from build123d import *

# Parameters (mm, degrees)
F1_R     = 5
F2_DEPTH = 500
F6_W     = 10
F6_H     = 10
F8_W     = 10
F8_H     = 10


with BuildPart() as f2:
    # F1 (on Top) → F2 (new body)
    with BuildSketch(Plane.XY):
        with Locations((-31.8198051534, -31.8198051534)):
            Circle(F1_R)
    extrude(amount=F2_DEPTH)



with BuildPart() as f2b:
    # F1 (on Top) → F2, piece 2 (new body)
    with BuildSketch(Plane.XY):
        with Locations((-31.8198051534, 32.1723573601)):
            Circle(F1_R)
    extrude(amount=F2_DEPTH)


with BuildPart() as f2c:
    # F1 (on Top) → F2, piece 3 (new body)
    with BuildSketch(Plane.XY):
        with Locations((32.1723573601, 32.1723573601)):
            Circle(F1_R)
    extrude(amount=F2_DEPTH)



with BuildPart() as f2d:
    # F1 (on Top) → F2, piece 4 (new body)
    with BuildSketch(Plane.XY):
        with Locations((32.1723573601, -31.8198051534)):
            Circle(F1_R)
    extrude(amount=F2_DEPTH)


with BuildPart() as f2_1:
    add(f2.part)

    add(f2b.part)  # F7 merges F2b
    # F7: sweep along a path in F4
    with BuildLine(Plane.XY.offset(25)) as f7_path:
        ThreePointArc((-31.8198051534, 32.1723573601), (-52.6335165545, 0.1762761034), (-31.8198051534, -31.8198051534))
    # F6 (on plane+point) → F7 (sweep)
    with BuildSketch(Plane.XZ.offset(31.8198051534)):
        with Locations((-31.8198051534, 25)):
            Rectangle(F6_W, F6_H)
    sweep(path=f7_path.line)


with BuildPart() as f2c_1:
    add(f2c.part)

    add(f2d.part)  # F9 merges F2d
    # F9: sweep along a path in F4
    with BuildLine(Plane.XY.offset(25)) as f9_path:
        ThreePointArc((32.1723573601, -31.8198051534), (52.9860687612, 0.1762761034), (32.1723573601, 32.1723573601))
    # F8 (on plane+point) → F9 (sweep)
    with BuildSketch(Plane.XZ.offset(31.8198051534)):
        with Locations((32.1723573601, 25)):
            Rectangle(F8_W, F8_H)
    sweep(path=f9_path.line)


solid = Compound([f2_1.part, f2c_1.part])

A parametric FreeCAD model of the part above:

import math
import FreeCAD as App
import Part
import Sketcher
from FreeCAD import Vector

doc = App.newDocument("Part")
params = doc.addObject("Spreadsheet::Sheet", "Params")
for row, (alias, value) in enumerate([
    ("sketch1_diameter", "10 mm"),
    ("pad1_length", "500 mm"),
    ("sketch2_diameter", "10 mm"),
    ("pad2_length", "500 mm"),
    ("sketch3_diameter", "10 mm"),
    ("pad3_length", "500 mm"),
    ("sketch4_diameter", "10 mm"),
    ("pad4_length", "500 mm"),
    ("sketch5_width", "10 mm"),
    ("sketch6_radius", "35 mm"),
    ("sketch7_width", "10 mm"),
    ("sketch8_radius", "35 mm"),
], start=1):
    params.set(f"A{row}", alias)
    params.set(f"B{row}", "=" + value)
    params.setAlias(f"B{row}", alias)

body = doc.addObject("PartDesign::Body", "Body")

sketch1 = body.newObject("Sketcher::SketchObject", "Sketch")
sketch1.AttachmentSupport = (doc.getObject("XY_Plane"), [""])
sketch1.MapMode = "FlatFace"
sketch1.addGeometry(Part.Circle(Vector(-31.819805, -31.819805, 0), Vector(0, 0, 1), 5), False)
sketch1.addConstraint([
    Sketcher.Constraint("Diameter", 0, 10.0),
    Sketcher.Constraint("DistanceX", 0, 3, -1, 1, 31.819805),
    Sketcher.Constraint("DistanceY", 0, 3, -1, 1, 31.819805),
])
sketch1.setExpression("Constraints[0]", "Params.sketch1_diameter")
pad1 = body.newObject("PartDesign::Pad", "Pad")
pad1.Profile = sketch1
pad1.setExpression("Length", "Params.pad1_length")
body2 = doc.addObject("PartDesign::Body", "Body001")

sketch2 = body2.newObject("Sketcher::SketchObject", "Sketch001")
sketch2.AttachmentSupport = (doc.getObject("XY_Plane001"), [""])
sketch2.MapMode = "FlatFace"
sketch2.addGeometry(Part.Circle(Vector(-31.819805, 32.172357, 0), Vector(0, 0, 1), 5), False)
sketch2.addConstraint([
    Sketcher.Constraint("Diameter", 0, 10.0),
    Sketcher.Constraint("DistanceX", 0, 3, -1, 1, 31.819805),
    Sketcher.Constraint("DistanceY", -1, 1, 0, 3, 32.172357),
])
sketch2.setExpression("Constraints[0]", "Params.sketch2_diameter")
pad2 = body2.newObject("PartDesign::Pad", "Pad001")
pad2.Profile = sketch2
pad2.setExpression("Length", "Params.pad2_length")
body3 = doc.addObject("PartDesign::Body", "Body002")

sketch3 = body3.newObject("Sketcher::SketchObject", "Sketch002")
sketch3.AttachmentSupport = (doc.getObject("XY_Plane002"), [""])
sketch3.MapMode = "FlatFace"
sketch3.addGeometry(Part.Circle(Vector(32.172357, 32.172357, 0), Vector(0, 0, 1), 5), False)
sketch3.addConstraint([
    Sketcher.Constraint("Diameter", 0, 10.0),
    Sketcher.Constraint("DistanceX", -1, 1, 0, 3, 32.172357),
    Sketcher.Constraint("DistanceY", -1, 1, 0, 3, 32.172357),
])
sketch3.setExpression("Constraints[0]", "Params.sketch3_diameter")
pad3 = body3.newObject("PartDesign::Pad", "Pad002")
pad3.Profile = sketch3
pad3.setExpression("Length", "Params.pad3_length")
body4 = doc.addObject("PartDesign::Body", "Body003")

sketch4 = body4.newObject("Sketcher::SketchObject", "Sketch003")
sketch4.AttachmentSupport = (doc.getObject("XY_Plane003"), [""])
sketch4.MapMode = "FlatFace"
sketch4.addGeometry(Part.Circle(Vector(32.172357, -31.819805, 0), Vector(0, 0, 1), 5), False)
sketch4.addConstraint([
    Sketcher.Constraint("Diameter", 0, 10.0),
    Sketcher.Constraint("DistanceX", -1, 1, 0, 3, 32.172357),
    Sketcher.Constraint("DistanceY", 0, 3, -1, 1, 31.819805),
])
sketch4.setExpression("Constraints[0]", "Params.sketch4_diameter")
pad4 = body4.newObject("PartDesign::Pad", "Pad003")
pad4.Profile = sketch4
pad4.setExpression("Length", "Params.pad4_length")
body.AllowCompound = True
doc.recompute()

boolean = body.newObject("PartDesign::Boolean", "Boolean")
boolean.Type = "Fuse"
boolean.addObjects([body2])

sketch5 = body.newObject("Sketcher::SketchObject", "Sketch004")
sketch5.AttachmentSupport = (doc.getObject("XZ_Plane"), [""])
sketch5.MapMode = "FlatFace"
sketch5.AttachmentOffset = App.Placement(Vector(0, 0, 31.819805), App.Rotation())
sketch5.addGeometry([
    Part.LineSegment(Vector(-36.819805, 30, 0), Vector(-36.819805, 20, 0)),
    Part.LineSegment(Vector(-36.819805, 20, 0), Vector(-26.819805, 20, 0)),
    Part.LineSegment(Vector(-26.819805, 20, 0), Vector(-26.819805, 30, 0)),
    Part.LineSegment(Vector(-26.819805, 30, 0), Vector(-36.819805, 30, 0)),
], False)
sketch5.addConstraint([
    Sketcher.Constraint("Coincident", 0, 2, 1, 1),
    Sketcher.Constraint("Coincident", 1, 2, 2, 1),
    Sketcher.Constraint("Coincident", 2, 2, 3, 1),
    Sketcher.Constraint("Coincident", 3, 2, 0, 1),
    Sketcher.Constraint("Vertical", 0),
    Sketcher.Constraint("Horizontal", 1),
    Sketcher.Constraint("Vertical", 2),
    Sketcher.Constraint("Horizontal", 3),
    Sketcher.Constraint("Equal", 3, 0),
    Sketcher.Constraint("DistanceX", 1, 1, 1, 2, 10.0),
    Sketcher.Constraint("DistanceY", -1, 1, 0, 2, 20.0),
    Sketcher.Constraint("DistanceX", 0, 2, -1, 1, 36.819805),
])
sketch5.setExpression("Constraints[9]", "Params.sketch5_width")

sketch6 = body.newObject("Sketcher::SketchObject", "Sketch005")
sketch6.AttachmentSupport = (doc.getObject("XY_Plane"), [""])
sketch6.MapMode = "FlatFace"
sketch6.AttachmentOffset = App.Placement(Vector(0, 0, 25), App.Rotation())
sketch6.addGeometry(Part.ArcOfCircle(Part.Circle(Vector(-17.633517, 0.176276, 0), Vector(0, 0, 1), 35), math.radians(113.91134), math.radians(246.08866)), False)
sketch6.addConstraint([
    Sketcher.Constraint("Radius", 0, 35.0),
    Sketcher.Constraint("DistanceX", 0, 1, 0, 3, 14.186289),
    Sketcher.Constraint("DistanceX", 0, 2, 0, 3, 14.186289),
    Sketcher.Constraint("DistanceX", 0, 3, -1, 1, 17.633517),
    Sketcher.Constraint("DistanceY", -1, 1, 0, 3, 0.176276),
])
sketch6.setExpression("Constraints[0]", "Params.sketch6_radius")
doc.recompute()

additivepipe = body.newObject("PartDesign::AdditivePipe", "AdditivePipe")
additivepipe.Profile = sketch5
additivepipe.Spine = (sketch6, ["Edge1"])
body3.AllowCompound = True
doc.recompute()

boolean2 = body3.newObject("PartDesign::Boolean", "Boolean001")
boolean2.Type = "Fuse"
boolean2.addObjects([body4])

sketch7 = body3.newObject("Sketcher::SketchObject", "Sketch006")
sketch7.AttachmentSupport = (doc.getObject("XZ_Plane002"), [""])
sketch7.MapMode = "FlatFace"
sketch7.AttachmentOffset = App.Placement(Vector(0, 0, 31.819805), App.Rotation())
sketch7.addGeometry([
    Part.LineSegment(Vector(27.172357, 30, 0), Vector(27.172357, 20, 0)),
    Part.LineSegment(Vector(27.172357, 20, 0), Vector(37.172357, 20, 0)),
    Part.LineSegment(Vector(37.172357, 20, 0), Vector(37.172357, 30, 0)),
    Part.LineSegment(Vector(37.172357, 30, 0), Vector(27.172357, 30, 0)),
], False)
sketch7.addConstraint([
    Sketcher.Constraint("Coincident", 0, 2, 1, 1),
    Sketcher.Constraint("Coincident", 1, 2, 2, 1),
    Sketcher.Constraint("Coincident", 2, 2, 3, 1),
    Sketcher.Constraint("Coincident", 3, 2, 0, 1),
    Sketcher.Constraint("Vertical", 0),
    Sketcher.Constraint("Horizontal", 1),
    Sketcher.Constraint("Vertical", 2),
    Sketcher.Constraint("Horizontal", 3),
    Sketcher.Constraint("Equal", 3, 0),
    Sketcher.Constraint("DistanceX", 1, 1, 1, 2, 10.0),
    Sketcher.Constraint("DistanceY", -1, 1, 0, 2, 20.0),
    Sketcher.Constraint("DistanceX", -1, 1, 0, 2, 27.172357),
])
sketch7.setExpression("Constraints[9]", "Params.sketch7_width")

sketch8 = body3.newObject("Sketcher::SketchObject", "Sketch007")
sketch8.AttachmentSupport = (doc.getObject("XY_Plane002"), [""])
sketch8.MapMode = "FlatFace"
sketch8.AttachmentOffset = App.Placement(Vector(0, 0, 25), App.Rotation())
sketch8.addGeometry(Part.ArcOfCircle(Part.Circle(Vector(17.986069, 0.176276, 0), Vector(0, 0, 1), 35), math.radians(-66.08866), math.radians(66.08866)), False)
sketch8.addConstraint([
    Sketcher.Constraint("Radius", 0, 35.0),
    Sketcher.Constraint("DistanceX", -1, 1, 0, 3, 17.986069),
    Sketcher.Constraint("DistanceX", 0, 3, 0, 1, 14.186289),
    Sketcher.Constraint("DistanceX", 0, 3, 0, 2, 14.186289),
    Sketcher.Constraint("DistanceY", -1, 1, 0, 3, 0.176276),
])
sketch8.setExpression("Constraints[0]", "Params.sketch8_radius")
doc.recompute()

additivepipe2 = body3.newObject("PartDesign::AdditivePipe", "AdditivePipe001")
additivepipe2.Profile = sketch7
additivepipe2.Spine = (sketch8, ["Edge1"])

doc.recompute()
